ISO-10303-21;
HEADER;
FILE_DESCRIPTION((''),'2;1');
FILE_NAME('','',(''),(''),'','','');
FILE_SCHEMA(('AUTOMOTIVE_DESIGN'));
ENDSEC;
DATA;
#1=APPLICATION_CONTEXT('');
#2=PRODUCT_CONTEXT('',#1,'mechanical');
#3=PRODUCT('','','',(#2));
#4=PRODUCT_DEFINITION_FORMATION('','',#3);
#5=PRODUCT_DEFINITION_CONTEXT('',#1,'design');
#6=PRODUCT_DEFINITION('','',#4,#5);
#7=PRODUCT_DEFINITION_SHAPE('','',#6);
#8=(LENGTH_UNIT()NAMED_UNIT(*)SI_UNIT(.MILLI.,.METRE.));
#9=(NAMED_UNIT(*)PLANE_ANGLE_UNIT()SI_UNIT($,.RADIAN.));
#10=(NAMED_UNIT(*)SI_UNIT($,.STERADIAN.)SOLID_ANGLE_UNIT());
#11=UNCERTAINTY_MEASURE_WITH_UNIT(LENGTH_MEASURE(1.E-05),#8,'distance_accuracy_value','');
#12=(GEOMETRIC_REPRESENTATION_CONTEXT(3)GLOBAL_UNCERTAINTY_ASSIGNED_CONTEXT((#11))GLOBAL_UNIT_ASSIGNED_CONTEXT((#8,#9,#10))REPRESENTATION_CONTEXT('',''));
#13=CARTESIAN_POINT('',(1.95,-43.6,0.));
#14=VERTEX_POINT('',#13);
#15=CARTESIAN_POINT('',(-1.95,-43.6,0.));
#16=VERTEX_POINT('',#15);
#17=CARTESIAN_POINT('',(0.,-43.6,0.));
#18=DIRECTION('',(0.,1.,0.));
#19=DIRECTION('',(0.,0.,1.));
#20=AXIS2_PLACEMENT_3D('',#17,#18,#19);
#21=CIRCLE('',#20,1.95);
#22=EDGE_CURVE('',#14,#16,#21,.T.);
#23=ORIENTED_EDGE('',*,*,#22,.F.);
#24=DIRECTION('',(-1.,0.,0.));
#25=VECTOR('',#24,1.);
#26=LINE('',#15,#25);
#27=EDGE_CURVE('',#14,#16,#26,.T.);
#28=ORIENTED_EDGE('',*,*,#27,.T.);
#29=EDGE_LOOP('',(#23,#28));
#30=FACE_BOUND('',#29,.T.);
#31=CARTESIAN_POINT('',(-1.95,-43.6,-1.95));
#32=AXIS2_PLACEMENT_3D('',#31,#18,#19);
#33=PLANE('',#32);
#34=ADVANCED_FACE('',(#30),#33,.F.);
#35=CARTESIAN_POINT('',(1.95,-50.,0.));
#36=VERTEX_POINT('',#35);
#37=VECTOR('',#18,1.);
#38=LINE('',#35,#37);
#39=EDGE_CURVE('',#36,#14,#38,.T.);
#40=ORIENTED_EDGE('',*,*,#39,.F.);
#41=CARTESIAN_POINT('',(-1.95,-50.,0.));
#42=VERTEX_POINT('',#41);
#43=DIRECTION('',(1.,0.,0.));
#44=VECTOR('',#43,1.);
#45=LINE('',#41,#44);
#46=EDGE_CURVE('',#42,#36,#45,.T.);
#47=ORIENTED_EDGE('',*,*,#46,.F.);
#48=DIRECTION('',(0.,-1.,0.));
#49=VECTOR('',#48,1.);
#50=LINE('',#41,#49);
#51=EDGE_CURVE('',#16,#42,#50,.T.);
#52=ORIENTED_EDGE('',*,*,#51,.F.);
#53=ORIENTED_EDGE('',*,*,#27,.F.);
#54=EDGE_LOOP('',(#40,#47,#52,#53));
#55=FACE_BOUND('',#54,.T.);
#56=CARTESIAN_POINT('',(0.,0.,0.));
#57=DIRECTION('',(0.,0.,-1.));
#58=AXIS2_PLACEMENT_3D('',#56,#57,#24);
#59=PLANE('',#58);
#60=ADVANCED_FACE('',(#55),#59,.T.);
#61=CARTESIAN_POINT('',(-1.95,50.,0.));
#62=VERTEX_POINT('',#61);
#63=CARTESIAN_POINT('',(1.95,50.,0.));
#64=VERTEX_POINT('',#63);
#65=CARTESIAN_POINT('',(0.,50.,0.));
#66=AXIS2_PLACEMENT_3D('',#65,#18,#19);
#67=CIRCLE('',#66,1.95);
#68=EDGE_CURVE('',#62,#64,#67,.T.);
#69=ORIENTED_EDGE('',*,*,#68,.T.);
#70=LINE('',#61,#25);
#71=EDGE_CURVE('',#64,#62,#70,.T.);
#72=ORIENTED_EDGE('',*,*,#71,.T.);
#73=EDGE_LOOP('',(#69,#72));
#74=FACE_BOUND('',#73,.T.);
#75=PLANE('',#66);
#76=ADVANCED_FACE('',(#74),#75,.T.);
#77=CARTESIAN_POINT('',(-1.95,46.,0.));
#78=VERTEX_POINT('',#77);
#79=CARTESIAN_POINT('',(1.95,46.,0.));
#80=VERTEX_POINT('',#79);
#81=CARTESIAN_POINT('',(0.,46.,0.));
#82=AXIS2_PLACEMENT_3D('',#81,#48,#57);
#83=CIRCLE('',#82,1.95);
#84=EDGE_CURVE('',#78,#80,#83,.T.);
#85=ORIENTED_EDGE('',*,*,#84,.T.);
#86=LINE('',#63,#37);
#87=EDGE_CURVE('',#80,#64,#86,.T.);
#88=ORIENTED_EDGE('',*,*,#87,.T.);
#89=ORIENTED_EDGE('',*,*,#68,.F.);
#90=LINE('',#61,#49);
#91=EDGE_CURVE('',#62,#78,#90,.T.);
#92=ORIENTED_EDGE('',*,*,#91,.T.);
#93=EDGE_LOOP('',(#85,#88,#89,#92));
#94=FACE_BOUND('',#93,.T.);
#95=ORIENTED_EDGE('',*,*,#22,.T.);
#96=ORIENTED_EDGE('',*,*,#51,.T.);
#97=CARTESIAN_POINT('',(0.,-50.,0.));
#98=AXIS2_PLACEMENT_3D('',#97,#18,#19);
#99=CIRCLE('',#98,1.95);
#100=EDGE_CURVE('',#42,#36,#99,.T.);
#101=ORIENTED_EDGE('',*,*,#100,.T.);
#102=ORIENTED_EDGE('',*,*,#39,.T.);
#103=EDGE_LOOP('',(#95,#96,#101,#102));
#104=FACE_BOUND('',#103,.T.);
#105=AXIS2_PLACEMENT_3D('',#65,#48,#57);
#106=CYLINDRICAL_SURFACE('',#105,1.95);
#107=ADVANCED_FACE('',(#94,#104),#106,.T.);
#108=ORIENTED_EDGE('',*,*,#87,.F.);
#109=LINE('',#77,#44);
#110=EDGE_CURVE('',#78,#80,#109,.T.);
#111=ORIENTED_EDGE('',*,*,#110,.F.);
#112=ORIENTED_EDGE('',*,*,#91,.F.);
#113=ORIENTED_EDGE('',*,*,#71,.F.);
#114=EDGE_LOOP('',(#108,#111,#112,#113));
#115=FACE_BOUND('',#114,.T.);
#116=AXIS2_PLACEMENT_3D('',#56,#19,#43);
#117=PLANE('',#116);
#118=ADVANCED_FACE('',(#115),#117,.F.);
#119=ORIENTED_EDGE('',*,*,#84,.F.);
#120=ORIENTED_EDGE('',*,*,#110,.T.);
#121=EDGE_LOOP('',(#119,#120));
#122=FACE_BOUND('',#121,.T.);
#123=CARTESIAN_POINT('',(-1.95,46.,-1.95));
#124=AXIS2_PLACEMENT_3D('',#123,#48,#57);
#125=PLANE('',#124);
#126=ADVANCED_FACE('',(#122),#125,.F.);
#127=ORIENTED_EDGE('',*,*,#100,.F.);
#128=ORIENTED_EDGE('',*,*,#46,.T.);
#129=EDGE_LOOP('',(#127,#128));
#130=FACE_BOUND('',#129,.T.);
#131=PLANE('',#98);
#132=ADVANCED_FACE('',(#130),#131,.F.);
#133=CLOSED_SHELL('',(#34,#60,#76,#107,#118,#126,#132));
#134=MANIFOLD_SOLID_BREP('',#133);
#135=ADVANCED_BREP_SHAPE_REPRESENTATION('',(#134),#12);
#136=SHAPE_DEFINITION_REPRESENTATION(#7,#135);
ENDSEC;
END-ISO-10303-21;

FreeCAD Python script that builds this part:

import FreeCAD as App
import Part
import Sketcher

V = App.Vector
Q = App.Units.Quantity


def add_polygon(sketch, points):
    """Adds a closed chain of lines whose ends are joined by coincident constraints."""
    first, n = sketch.GeometryCount, len(points)
    for a, b in zip(points, points[1:] + points[:1]):
        sketch.addGeometry(Part.LineSegment(App.Vector(*a, 0), App.Vector(*b, 0)), False)
    for i in range(n):
        sketch.addConstraint(Sketcher.Constraint("Coincident", first + i, 2, first + (i + 1) % n, 1))

doc = App.newDocument("Part")
params = doc.addObject("Spreadsheet::Sheet", "Params")
for row, (alias, value) in enumerate([
    ("sketch1_diameter", "3.9 mm"),
    ("pad1_length", "100 mm"),
    ("sketch2_height", "4 mm"),
    ("sketch2_width", "3.9 mm"),
    ("sketch2_height2", "6.4 mm"),
], start=1):
    params.set(f"A{row}", alias)
    params.set(f"B{row}", "=" + value)
    params.setAlias(f"B{row}", alias)

body = doc.addObject("PartDesign::Body", "Body")

sketch1 = doc.addObject("Sketcher::SketchObject", "Sketch")
body.addObject(sketch1)
sketch1.AttachmentSupport = (doc.XZ_Plane, [""])
sketch1.MapMode = "FlatFace"
sketch1.addGeometry(Part.Circle(V(0, 0, 0), V(0, 0, 1), 1.9), False)
sketch1.addConstraint(Sketcher.Constraint("Coincident", 0, 3, -1, 1))
sketch1.addConstraint(Sketcher.Constraint("Diameter", 0, Q("3.9 mm")))
sketch1.setExpression("Constraints[1]", "Params.sketch1_diameter")
pad1 = doc.addObject("PartDesign::Pad", "Pad")
body.addObject(pad1)
pad1.Profile = sketch1
pad1.setExpression("Length", "Params.pad1_length")
pad1.Midplane = True

sketch2 = doc.addObject("Sketcher::SketchObject", "Sketch001")
body.addObject(sketch2)
sketch2.AttachmentSupport = (doc.XY_Plane, [""])
sketch2.MapMode = "FlatFace"
add_polygon(sketch2, [(-1.9, 50), (-1.9, 46), (1.9, 46), (1.9, 50)])
add_polygon(sketch2, [(-1.9, -43.6), (-1.9, -50), (1.9, -50), (1.9, -43.6)])
sketch2.addConstraint(Sketcher.Constraint("Vertical", 0))
sketch2.addConstraint(Sketcher.Constraint("Horizontal", 1))
sketch2.addConstraint(Sketcher.Constraint("Vertical", 2))
sketch2.addConstraint(Sketcher.Constraint("Horizontal", 3))
sketch2.addConstraint(Sketcher.Constraint("Vertical", 4))
sketch2.addConstraint(Sketcher.Constraint("Horizontal", 5))
sketch2.addConstraint(Sketcher.Constraint("Vertical", 6))
sketch2.addConstraint(Sketcher.Constraint("Horizontal", 7))
sketch2.addConstraint(Sketcher.Constraint("Symmetric", 2, 2, 4, 2, -1, 1))
sketch2.addConstraint(Sketcher.Constraint("Vertical", 3, 2, 4, 2))
sketch2.addConstraint(Sketcher.Constraint("Vertical", 2, 2, 5, 2))
sketch2.addConstraint(Sketcher.Constraint("DistanceY", 0, 2, 0, 1, Q("4 mm")))
sketch2.addConstraint(Sketcher.Constraint("DistanceX", 1, 1, 1, 2, Q("3.9 mm")))
sketch2.addConstraint(Sketcher.Constraint("DistanceY", 4, 2, 4, 1, Q("6.4 mm")))
sketch2.addConstraint(Sketcher.Constraint("DistanceY", -1, 1, 0, 2, Q("46 mm")))
sketch2.setExpression("Constraints[19]", "Params.sketch2_height")
sketch2.setExpression("Constraints[20]", "Params.sketch2_width")
sketch2.setExpression("Constraints[21]", "Params.sketch2_height2")
pocket1 = doc.addObject("PartDesign::Pocket", "Pocket")
body.addObject(pocket1)
pocket1.Profile = sketch2
pocket1.Type = "ThroughAll"

doc.recompute()
